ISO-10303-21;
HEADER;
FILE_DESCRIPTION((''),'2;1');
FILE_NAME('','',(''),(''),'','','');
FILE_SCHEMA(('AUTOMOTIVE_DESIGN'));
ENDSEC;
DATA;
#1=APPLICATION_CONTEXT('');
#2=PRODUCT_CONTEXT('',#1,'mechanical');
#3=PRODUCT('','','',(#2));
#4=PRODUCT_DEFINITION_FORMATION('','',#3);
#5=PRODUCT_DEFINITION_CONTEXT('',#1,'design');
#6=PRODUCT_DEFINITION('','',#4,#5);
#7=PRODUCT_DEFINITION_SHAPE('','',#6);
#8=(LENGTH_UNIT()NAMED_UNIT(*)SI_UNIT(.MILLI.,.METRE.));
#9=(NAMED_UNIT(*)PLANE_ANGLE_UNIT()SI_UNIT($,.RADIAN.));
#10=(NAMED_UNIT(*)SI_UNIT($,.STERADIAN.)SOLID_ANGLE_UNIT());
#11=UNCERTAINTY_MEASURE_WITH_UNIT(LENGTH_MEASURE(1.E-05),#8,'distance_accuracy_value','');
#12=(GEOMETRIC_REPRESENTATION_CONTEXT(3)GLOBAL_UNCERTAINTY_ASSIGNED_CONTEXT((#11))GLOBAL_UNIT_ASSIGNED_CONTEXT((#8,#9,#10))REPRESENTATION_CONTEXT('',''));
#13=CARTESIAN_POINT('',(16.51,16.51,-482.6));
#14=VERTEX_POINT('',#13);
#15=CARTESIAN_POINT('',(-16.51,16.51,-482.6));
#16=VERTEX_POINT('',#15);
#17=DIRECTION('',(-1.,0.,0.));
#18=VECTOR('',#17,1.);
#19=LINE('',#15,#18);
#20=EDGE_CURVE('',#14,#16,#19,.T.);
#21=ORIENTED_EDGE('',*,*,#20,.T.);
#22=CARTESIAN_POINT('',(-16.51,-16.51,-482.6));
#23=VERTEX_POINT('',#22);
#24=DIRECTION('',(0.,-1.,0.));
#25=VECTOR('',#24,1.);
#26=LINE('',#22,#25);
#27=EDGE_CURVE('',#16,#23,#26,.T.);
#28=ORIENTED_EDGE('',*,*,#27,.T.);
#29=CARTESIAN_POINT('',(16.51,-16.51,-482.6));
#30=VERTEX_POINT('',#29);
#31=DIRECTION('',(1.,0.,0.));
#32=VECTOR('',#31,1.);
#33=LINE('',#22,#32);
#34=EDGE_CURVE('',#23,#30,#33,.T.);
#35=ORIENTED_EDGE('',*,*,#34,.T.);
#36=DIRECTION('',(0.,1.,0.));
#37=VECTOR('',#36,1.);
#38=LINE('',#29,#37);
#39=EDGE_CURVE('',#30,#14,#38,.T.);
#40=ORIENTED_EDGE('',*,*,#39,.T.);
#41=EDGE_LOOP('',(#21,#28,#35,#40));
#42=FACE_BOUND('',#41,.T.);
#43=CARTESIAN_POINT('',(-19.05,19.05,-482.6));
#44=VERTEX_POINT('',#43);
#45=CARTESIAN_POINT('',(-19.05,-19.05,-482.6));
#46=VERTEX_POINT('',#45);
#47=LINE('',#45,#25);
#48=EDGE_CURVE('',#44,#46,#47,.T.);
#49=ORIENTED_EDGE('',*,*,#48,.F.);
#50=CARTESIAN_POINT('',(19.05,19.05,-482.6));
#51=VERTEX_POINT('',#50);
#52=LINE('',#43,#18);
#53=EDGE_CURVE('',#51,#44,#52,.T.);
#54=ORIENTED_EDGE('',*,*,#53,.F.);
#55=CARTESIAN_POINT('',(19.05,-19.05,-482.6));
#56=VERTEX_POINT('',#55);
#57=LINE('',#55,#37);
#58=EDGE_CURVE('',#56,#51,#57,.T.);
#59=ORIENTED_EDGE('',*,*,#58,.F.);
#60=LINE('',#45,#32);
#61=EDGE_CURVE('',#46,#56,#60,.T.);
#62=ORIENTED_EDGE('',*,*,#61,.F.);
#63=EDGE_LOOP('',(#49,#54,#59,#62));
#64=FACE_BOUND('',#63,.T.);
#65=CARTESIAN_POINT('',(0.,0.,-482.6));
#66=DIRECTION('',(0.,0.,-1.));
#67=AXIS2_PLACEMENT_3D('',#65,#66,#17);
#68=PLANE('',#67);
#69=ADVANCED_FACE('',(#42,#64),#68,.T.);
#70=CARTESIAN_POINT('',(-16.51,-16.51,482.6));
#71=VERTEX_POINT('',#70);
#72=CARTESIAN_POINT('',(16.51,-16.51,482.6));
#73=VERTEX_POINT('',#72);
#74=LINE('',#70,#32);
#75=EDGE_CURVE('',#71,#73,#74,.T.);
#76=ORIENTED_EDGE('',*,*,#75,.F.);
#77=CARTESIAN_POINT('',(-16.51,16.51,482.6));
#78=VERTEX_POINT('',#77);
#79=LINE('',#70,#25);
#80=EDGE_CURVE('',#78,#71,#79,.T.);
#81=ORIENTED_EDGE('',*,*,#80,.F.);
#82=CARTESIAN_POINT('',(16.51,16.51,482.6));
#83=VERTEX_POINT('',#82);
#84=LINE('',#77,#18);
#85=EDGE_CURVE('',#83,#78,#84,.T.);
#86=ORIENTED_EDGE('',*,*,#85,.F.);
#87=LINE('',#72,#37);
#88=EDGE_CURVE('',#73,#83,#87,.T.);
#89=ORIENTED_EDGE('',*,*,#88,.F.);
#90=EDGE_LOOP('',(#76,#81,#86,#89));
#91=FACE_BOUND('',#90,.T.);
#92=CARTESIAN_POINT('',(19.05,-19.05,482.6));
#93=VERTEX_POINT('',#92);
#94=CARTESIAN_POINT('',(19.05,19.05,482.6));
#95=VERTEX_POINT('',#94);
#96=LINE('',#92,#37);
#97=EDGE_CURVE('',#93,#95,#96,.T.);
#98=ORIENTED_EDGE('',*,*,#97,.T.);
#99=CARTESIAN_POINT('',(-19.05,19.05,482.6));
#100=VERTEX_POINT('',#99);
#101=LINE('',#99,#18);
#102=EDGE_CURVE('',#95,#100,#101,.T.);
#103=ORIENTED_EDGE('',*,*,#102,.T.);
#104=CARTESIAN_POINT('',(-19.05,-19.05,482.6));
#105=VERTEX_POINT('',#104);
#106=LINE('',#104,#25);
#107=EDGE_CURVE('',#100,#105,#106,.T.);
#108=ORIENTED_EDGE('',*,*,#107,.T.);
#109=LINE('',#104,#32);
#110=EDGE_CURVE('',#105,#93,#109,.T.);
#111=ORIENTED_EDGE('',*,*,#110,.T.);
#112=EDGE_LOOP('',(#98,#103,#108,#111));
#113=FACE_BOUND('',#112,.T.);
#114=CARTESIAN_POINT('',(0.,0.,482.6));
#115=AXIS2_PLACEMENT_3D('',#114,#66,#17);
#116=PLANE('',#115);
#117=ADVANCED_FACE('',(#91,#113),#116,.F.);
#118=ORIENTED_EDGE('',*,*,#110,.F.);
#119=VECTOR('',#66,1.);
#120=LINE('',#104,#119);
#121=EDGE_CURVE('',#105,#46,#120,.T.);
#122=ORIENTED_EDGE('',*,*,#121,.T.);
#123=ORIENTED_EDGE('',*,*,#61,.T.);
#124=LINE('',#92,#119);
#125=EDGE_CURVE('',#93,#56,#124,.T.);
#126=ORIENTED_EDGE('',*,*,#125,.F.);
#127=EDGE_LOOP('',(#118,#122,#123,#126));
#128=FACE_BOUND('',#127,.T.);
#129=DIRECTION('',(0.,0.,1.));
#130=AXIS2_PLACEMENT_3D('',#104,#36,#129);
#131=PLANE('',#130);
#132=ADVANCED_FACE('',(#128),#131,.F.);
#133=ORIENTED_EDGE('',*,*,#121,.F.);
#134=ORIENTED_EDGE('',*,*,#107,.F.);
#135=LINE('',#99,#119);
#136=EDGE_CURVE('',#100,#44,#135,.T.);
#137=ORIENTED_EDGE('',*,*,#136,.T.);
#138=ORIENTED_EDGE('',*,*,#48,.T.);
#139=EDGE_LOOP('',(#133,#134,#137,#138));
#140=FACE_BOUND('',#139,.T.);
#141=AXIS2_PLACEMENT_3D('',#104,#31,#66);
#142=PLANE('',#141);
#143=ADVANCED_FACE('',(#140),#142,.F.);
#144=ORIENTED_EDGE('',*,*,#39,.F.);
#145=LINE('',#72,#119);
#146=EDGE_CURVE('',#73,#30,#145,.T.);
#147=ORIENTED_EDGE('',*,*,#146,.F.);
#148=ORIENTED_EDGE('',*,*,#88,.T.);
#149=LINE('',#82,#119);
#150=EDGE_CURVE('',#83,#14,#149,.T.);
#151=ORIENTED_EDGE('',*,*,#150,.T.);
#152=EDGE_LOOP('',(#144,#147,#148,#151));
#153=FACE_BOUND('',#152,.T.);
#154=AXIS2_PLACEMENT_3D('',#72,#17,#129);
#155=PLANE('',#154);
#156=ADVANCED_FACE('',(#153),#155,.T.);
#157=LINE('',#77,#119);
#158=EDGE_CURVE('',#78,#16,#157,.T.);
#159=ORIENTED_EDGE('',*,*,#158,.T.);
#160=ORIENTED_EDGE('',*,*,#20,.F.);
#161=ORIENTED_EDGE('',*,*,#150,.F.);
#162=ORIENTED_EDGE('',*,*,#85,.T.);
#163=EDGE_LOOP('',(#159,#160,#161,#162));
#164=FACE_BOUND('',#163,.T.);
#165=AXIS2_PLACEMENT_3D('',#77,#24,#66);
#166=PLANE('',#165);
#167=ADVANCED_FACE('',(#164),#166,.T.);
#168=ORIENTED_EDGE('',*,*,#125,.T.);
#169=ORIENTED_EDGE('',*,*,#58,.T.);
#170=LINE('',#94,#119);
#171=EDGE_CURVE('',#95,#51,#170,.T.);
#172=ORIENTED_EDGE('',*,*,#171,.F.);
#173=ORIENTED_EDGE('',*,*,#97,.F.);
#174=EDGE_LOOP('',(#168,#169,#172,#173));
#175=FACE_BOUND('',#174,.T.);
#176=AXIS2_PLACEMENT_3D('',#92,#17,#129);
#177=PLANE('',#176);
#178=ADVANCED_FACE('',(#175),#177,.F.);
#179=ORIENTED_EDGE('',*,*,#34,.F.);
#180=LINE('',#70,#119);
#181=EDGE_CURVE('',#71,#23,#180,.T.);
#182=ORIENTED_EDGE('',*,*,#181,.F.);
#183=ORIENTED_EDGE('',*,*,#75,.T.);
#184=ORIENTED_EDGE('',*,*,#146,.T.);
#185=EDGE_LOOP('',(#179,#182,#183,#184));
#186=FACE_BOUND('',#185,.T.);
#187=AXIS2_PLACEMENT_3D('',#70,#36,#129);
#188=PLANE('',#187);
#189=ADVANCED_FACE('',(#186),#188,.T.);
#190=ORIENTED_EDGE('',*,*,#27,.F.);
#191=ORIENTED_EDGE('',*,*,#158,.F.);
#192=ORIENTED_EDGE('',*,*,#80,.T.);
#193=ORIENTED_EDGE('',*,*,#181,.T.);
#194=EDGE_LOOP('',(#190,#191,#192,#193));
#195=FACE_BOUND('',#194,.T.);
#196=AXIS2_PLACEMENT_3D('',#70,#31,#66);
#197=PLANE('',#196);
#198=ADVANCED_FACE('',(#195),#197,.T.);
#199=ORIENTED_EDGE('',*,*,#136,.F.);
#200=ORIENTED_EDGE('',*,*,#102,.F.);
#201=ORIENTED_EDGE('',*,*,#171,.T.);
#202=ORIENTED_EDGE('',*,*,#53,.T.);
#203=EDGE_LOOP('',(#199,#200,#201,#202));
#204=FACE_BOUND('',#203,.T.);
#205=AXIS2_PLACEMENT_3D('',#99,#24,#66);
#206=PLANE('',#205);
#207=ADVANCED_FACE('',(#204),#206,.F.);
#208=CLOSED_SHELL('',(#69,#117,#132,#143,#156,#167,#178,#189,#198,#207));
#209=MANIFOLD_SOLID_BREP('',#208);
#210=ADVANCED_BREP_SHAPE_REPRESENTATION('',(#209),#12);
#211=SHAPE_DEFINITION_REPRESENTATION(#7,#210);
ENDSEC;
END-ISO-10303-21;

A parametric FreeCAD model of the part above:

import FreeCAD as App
import Part
import Sketcher

V = App.Vector
Q = App.Units.Quantity


def add_polygon(sketch, points):
    """Adds a closed chain of lines whose ends are joined by coincident constraints."""
    first, n = sketch.GeometryCount, len(points)
    for a, b in zip(points, points[1:] + points[:1]):
        sketch.addGeometry(Part.LineSegment(App.Vector(*a, 0), App.Vector(*b, 0)), False)
    for i in range(n):
        sketch.addConstraint(Sketcher.Constraint("Coincident", first + i, 2, first + (i + 1) % n, 1))

doc = App.newDocument("Part")
body = doc.addObject("PartDesign::Body", "Body")

# Sketch on XY plane
sketch1 = body.newObject("Sketcher::SketchObject", "Sketch")
sketch1.AttachmentSupport = (doc.getObject("XY_Plane"), [""])
sketch1.MapMode = "FlatFace"
add_polygon(sketch1, [(-19, 19), (-19, -19), (19, -19), (19, 19)])  # lines 0-3
add_polygon(sketch1, [(17, -17), (-17, -17), (-17, 17), (17, 17)])  # lines 4-7
sketch1.addConstraint([
    Sketcher.Constraint("Vertical", 0),
    Sketcher.Constraint("Horizontal", 1),
    Sketcher.Constraint("Vertical", 2),
    Sketcher.Constraint("Horizontal", 3),
    Sketcher.Constraint("Horizontal", 4),
    Sketcher.Constraint("Vertical", 5),
    Sketcher.Constraint("Horizontal", 6),
    Sketcher.Constraint("Vertical", 7),
    Sketcher.Constraint("Symmetric", 0, 2, 2, 2, -1, 1),
    Sketcher.Constraint("Symmetric", 4, 2, 6, 2, -1, 1),
    Sketcher.Constraint("Equal", 3, 0),
    Sketcher.Constraint("Equal", 6, 5),
    Sketcher.Constraint("DistanceX", 1, 1, 1, 2, Q("1.5 in")),
    Sketcher.Constraint("DistanceX", 4, 2, 4, 1, Q("1.3 in")),
])
pad1 = body.newObject("PartDesign::Pad", "Pad")
pad1.Profile = sketch1
pad1.Length = Q("38 in")
pad1.Midplane = True

doc.recompute()
